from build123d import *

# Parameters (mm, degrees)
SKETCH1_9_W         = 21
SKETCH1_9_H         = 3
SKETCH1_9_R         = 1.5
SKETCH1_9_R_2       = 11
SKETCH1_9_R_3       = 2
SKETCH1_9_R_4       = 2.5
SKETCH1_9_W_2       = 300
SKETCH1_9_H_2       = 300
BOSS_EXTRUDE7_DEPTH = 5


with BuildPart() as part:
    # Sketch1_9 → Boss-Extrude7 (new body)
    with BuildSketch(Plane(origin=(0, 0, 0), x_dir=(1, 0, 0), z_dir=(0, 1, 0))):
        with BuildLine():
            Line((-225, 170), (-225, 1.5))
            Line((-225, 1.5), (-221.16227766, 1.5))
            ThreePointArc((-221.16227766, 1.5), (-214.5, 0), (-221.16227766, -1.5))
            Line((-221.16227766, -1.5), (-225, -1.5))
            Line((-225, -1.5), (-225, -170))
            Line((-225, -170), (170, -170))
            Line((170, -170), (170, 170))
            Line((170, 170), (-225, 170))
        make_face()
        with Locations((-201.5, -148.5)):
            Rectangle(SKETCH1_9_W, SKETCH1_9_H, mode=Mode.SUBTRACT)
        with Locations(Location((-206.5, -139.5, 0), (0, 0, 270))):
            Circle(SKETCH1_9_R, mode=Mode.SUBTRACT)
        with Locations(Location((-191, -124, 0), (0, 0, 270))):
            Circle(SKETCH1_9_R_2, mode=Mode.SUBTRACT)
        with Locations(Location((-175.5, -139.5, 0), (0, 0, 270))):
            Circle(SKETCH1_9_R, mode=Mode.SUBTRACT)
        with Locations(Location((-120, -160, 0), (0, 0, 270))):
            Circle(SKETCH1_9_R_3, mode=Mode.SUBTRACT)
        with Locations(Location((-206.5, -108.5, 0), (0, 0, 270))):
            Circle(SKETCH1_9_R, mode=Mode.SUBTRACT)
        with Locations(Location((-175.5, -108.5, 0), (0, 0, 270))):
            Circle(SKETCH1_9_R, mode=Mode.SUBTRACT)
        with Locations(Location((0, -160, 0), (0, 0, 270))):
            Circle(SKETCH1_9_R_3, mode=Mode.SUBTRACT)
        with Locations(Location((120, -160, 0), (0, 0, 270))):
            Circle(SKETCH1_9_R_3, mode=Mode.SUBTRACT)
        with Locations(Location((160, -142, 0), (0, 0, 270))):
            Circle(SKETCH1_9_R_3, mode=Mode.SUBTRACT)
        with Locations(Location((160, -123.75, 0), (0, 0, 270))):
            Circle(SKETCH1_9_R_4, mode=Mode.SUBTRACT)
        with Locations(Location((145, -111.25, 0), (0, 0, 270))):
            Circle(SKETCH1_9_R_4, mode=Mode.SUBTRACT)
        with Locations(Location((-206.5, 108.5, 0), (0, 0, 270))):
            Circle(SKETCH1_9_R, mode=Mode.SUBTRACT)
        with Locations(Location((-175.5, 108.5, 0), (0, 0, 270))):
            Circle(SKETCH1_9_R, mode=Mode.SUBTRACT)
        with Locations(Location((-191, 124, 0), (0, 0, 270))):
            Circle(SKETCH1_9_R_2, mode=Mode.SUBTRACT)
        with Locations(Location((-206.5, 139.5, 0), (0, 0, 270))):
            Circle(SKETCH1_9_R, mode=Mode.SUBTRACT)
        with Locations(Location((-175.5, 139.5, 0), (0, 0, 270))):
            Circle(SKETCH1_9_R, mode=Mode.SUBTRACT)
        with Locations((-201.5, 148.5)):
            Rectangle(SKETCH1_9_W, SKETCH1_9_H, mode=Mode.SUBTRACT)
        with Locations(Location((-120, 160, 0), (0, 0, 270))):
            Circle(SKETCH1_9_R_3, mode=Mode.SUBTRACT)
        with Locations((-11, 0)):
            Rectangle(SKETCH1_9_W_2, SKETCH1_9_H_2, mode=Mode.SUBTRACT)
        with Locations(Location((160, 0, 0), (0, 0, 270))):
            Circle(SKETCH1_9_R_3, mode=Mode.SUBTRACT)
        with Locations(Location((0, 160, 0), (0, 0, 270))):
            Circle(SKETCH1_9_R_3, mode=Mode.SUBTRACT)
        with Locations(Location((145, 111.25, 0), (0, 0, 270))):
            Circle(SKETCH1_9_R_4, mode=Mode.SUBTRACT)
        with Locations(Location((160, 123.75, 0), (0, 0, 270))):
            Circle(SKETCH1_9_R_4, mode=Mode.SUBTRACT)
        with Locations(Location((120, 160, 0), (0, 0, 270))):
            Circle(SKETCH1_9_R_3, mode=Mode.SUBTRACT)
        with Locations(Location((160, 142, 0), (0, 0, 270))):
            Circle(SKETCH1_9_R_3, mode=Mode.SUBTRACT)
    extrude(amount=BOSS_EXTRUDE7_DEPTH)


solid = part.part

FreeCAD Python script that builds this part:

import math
import FreeCAD as App
import Part
import Sketcher

V = App.Vector
Q = App.Units.Quantity

doc = App.newDocument("Part")
body = doc.addObject("PartDesign::Body", "Body")

# Sketch on XZ plane
sketch1 = body.newObject("Sketcher::SketchObject", "Sketch")
sketch1.AttachmentSupport = (doc.getObject("XZ_Plane"), [""])
sketch1.MapMode = "FlatFace"
sketch1.addGeometry([
    Part.LineSegment(V(-225, -170, 0), V(-225, -1.5, 0)),  # 0
    Part.LineSegment(V(-225, -1.5, 0), V(-221.162278, -1.5, 0)),  # 1
    Part.ArcOfCircle(Part.Circle(V(-218, 0, 0), V(0, 0, 1), 3.5), math.radians(-154.623066), math.radians(154.623066)),  # 2
    Part.LineSegment(V(-221.162278, 1.5, 0), V(-225, 1.5, 0)),  # 3
    Part.LineSegment(V(-225, 1.5, 0), V(-225, 170, 0)),  # 4
    Part.LineSegment(V(-225, 170, 0), V(170, 170, 0)),  # 5
    Part.LineSegment(V(170, 170, 0), V(170, -170, 0)),  # 6
    Part.LineSegment(V(170, -170, 0), V(-225, -170, 0)),  # 7
    Part.LineSegment(V(-191, 150, 0), V(-212, 150, 0)),  # 8
    Part.LineSegment(V(-212, 150, 0), V(-212, 147, 0)),  # 9
    Part.LineSegment(V(-212, 147, 0), V(-191, 147, 0)),  # 10
    Part.LineSegment(V(-191, 147, 0), V(-191, 150, 0)),  # 11
    Part.Circle(V(-206.5, 139.5, 0), V(0, 0, 1), 1.5),  # 12
    Part.Circle(V(-191, 124, 0), V(0, 0, 1), 11),  # 13
    Part.Circle(V(-175.5, 139.5, 0), V(0, 0, 1), 1.5),  # 14
    Part.Circle(V(-120, 160, 0), V(0, 0, 1), 2),  # 15
    Part.Circle(V(-206.5, 108.5, 0), V(0, 0, 1), 1.5),  # 16
    Part.Circle(V(-175.5, 108.5, 0), V(0, 0, 1), 1.5),  # 17
    Part.Circle(V(0, 160, 0), V(0, 0, 1), 2),  # 18
    Part.Circle(V(120, 160, 0), V(0, 0, 1), 2),  # 19
    Part.Circle(V(160, 142, 0), V(0, 0, 1), 2),  # 20
    Part.Circle(V(160, 123.75, 0), V(0, 0, 1), 2.5),  # 21
    Part.Circle(V(145, 111.25, 0), V(0, 0, 1), 2.5),  # 22
    Part.Circle(V(-206.5, -108.5, 0), V(0, 0, 1), 1.5),  # 23
    Part.Circle(V(-175.5, -108.5, 0), V(0, 0, 1), 1.5),  # 24
    Part.Circle(V(-191, -124, 0), V(0, 0, 1), 11),  # 25
    Part.Circle(V(-206.5, -139.5, 0), V(0, 0, 1), 1.5),  # 26
    Part.Circle(V(-175.5, -139.5, 0), V(0, 0, 1), 1.5),  # 27
    Part.LineSegment(V(-191, -147, 0), V(-212, -147, 0)),  # 28
    Part.LineSegment(V(-212, -147, 0), V(-212, -150, 0)),  # 29
    Part.LineSegment(V(-212, -150, 0), V(-191, -150, 0)),  # 30
    Part.LineSegment(V(-191, -150, 0), V(-191, -147, 0)),  # 31
    Part.Circle(V(-120, -160, 0), V(0, 0, 1), 2),  # 32
    Part.LineSegment(V(139, 150, 0), V(-161, 150, 0)),  # 33
    Part.LineSegment(V(-161, 150, 0), V(-161, -150, 0)),  # 34
    Part.LineSegment(V(-161, -150, 0), V(139, -150, 0)),  # 35
    Part.LineSegment(V(139, -150, 0), V(139, 150, 0)),  # 36
    Part.Circle(V(160, 0, 0), V(0, 0, 1), 2),  # 37
    Part.Circle(V(0, -160, 0), V(0, 0, 1), 2),  # 38
    Part.Circle(V(145, -111.25, 0), V(0, 0, 1), 2.5),  # 39
    Part.Circle(V(160, -123.75, 0), V(0, 0, 1), 2.5),  # 40
    Part.Circle(V(120, -160, 0), V(0, 0, 1), 2),  # 41
    Part.Circle(V(160, -142, 0), V(0, 0, 1), 2),  # 42
], False)
sketch1.addConstraint([
    Sketcher.Constraint("Coincident", 0, 2, 1, 1),
    Sketcher.Constraint("Coincident", 1, 2, 2, 1),
    Sketcher.Constraint("Coincident", 2, 2, 3, 1),
    Sketcher.Constraint("Coincident", 3, 2, 4, 1),
    Sketcher.Constraint("Coincident", 4, 2, 5, 1),
    Sketcher.Constraint("Coincident", 5, 2, 6, 1),
    Sketcher.Constraint("Coincident", 6, 2, 7, 1),
    Sketcher.Constraint("Coincident", 7, 2, 0, 1),
    Sketcher.Constraint("Coincident", 8, 2, 9, 1),
    Sketcher.Constraint("Coincident", 9, 2, 10, 1),
    Sketcher.Constraint("Coincident", 10, 2, 11, 1),
    Sketcher.Constraint("Coincident", 11, 2, 8, 1),
    Sketcher.Constraint("Coincident", 28, 2, 29, 1),
    Sketcher.Constraint("Coincident", 29, 2, 30, 1),
    Sketcher.Constraint("Coincident", 30, 2, 31, 1),
    Sketcher.Constraint("Coincident", 31, 2, 28, 1),
    Sketcher.Constraint("Coincident", 33, 2, 34, 1),
    Sketcher.Constraint("Coincident", 34, 2, 35, 1),
    Sketcher.Constraint("Coincident", 35, 2, 36, 1),
    Sketcher.Constraint("Coincident", 36, 2, 33, 1),
    Sketcher.Constraint("Vertical", 0),
    Sketcher.Constraint("Horizontal", 1),
    Sketcher.Constraint("Horizontal", 3),
    Sketcher.Constraint("Vertical", 4),
    Sketcher.Constraint("Horizontal", 5),
    Sketcher.Constraint("Vertical", 6),
    Sketcher.Constraint("Horizontal", 7),
    Sketcher.Constraint("Horizontal", 8),
    Sketcher.Constraint("Vertical", 9),
    Sketcher.Constraint("Horizontal", 10),
    Sketcher.Constraint("Vertical", 11),
    Sketcher.Constraint("Horizontal", 28),
    Sketcher.Constraint("Vertical", 29),
    Sketcher.Constraint("Horizontal", 30),
    Sketcher.Constraint("Vertical", 31),
    Sketcher.Constraint("Horizontal", 33),
    Sketcher.Constraint("Vertical", 34),
    Sketcher.Constraint("Horizontal", 35),
    Sketcher.Constraint("Vertical", 36),
    Sketcher.Constraint("Equal", 12, 14),
    Sketcher.Constraint("Equal", 14, 16),
    Sketcher.Constraint("Equal", 16, 17),
    Sketcher.Constraint("Equal", 15, 18),
    Sketcher.Constraint("Equal", 18, 19),
    Sketcher.Constraint("Equal", 19, 20),
    Sketcher.Constraint("Equal", 21, 22),
    Sketcher.Constraint("Equal", 17, 23),
    Sketcher.Constraint("Equal", 23, 24),
    Sketcher.Constraint("Equal", 13, 25),
    Sketcher.Constraint("Equal", 24, 26),
    Sketcher.Constraint("Equal", 26, 27),
    Sketcher.Constraint("Equal", 20, 32),
    Sketcher.Constraint("Equal", 32, 37),
    Sketcher.Constraint("Equal", 37, 38),
    Sketcher.Constraint("Equal", 22, 39),
    Sketcher.Constraint("Equal", 39, 40),
    Sketcher.Constraint("Equal", 38, 41),
    Sketcher.Constraint("Equal", 41, 42),
    Sketcher.Constraint("Symmetric", 19, 3, 32, 3, -1, 1),
    Sketcher.Constraint("Symmetric", 18, 3, 38, 3, -1, 1),
    Sketcher.Constraint("Symmetric", 15, 3, 41, 3, -1, 1),
    Sketcher.Constraint("Symmetric", 15, 3, 19, 3, -2),
    Sketcher.Constraint("Symmetric", 16, 3, 23, 3, -1),
    Sketcher.Constraint("Symmetric", 17, 3, 24, 3, -1),
    Sketcher.Constraint("Symmetric", 13, 3, 25, 3, -1),
    Sketcher.Constraint("Symmetric", 12, 3, 26, 3, -1),
    Sketcher.Constraint("Symmetric", 14, 3, 27, 3, -1),
    Sketcher.Constraint("Symmetric", 22, 3, 39, 3, -1),
    Sketcher.Constraint("Symmetric", 21, 3, 40, 3, -1),
    Sketcher.Constraint("Symmetric", 20, 3, 42, 3, -1),
    Sketcher.Constraint("Symmetric", 1, 2, 2, 2, -1),
    Sketcher.Constraint("Symmetric", 4, 2, 7, 2, -1),
    Sketcher.Constraint("Symmetric", 9, 2, 28, 2, -1),
    Sketcher.Constraint("Symmetric", 11, 2, 30, 2, -1),
    Sketcher.Constraint("PointOnObject", 18, 3, -2),
    Sketcher.Constraint("PointOnObject", 37, 3, -1),
    Sketcher.Constraint("Horizontal", 12, 3, 14, 3),
    Sketcher.Constraint("Horizontal", 16, 3, 17, 3),
    Sketcher.Constraint("Horizontal", 15, 3, 18, 3),
    Sketcher.Constraint("Horizontal", 11, 2, 33, 2),
    Sketcher.Constraint("Horizontal", 30, 2, 34, 2),
    Sketcher.Constraint("Vertical", 12, 3, 16, 3),
    Sketcher.Constraint("Vertical", 14, 3, 17, 3),
    Sketcher.Constraint("Vertical", 20, 3, 21, 3),
    Sketcher.Constraint("Vertical", 21, 3, 37, 3),
    Sketcher.Constraint("Vertical", 25, 3, 10, 2),
    Sketcher.Constraint("Equal", 35, 34),
    Sketcher.Constraint("Diameter", 12, Q("3 mm")),
    Sketcher.Constraint("Diameter", 13, Q("22 mm")),
    Sketcher.Constraint("Diameter", 15, Q("4 mm")),
    Sketcher.Constraint("Diameter", 21, Q("5 mm")),
    Sketcher.Constraint("Radius", 2, Q("3.5 mm")),
    Sketcher.Constraint("DistanceX", 5, 1, 5, 2, Q("395 mm")),
    Sketcher.Constraint("DistanceX", 8, 2, 8, 1, Q("21 mm")),
    Sketcher.Constraint("DistanceX", 33, 2, 33, 1, Q("300 mm")),
    Sketcher.Constraint("DistanceY", 6, 2, 6, 1, Q("340 mm")),
    Sketcher.Constraint("DistanceY", 9, 2, 9, 1, Q("3 mm")),
    Sketcher.Constraint("DistanceY", 0, 1, 0, 2, Q("168.5 mm")),
    Sketcher.Constraint("DistanceX", 2, 3, -1, 1, Q("218 mm")),
    Sketcher.Constraint("DistanceX", 13, 3, -1, 1, Q("191 mm")),
    Sketcher.Constraint("DistanceY", -1, 1, 13, 3, Q("124 mm")),
    Sketcher.Constraint("DistanceX", 15, 3, -1, 1, Q("120 mm")),
    Sketcher.Constraint("DistanceY", -1, 1, 15, 3, Q("160 mm")),
    Sketcher.Constraint("DistanceX", -1, 1, 20, 3, Q("160 mm")),
    Sketcher.Constraint("DistanceY", -1, 1, 20, 3, Q("142 mm")),
    Sketcher.Constraint("DistanceX", -1, 1, 22, 3, Q("145 mm")),
    Sketcher.Constraint("DistanceX", 0, 2, -1, 1, Q("225 mm")),
    Sketcher.Constraint("DistanceX", 33, 2, -1, 1, Q("161 mm")),
    Sketcher.Constraint("DistanceX", 12, 3, 14, 3, Q("31 mm")),
    Sketcher.Constraint("DistanceY", 16, 3, 12, 3, Q("31 mm")),
    Sketcher.Constraint("DistanceY", 23, 3, 16, 3, Q("217 mm")),
    Sketcher.Constraint("DistanceY", 39, 3, 21, 3, Q("235 mm")),
    Sketcher.Constraint("DistanceX", 12, 3, -1, 1, Q("206.5 mm")),
    Sketcher.Constraint("DistanceY", 22, 3, 21, 3, Q("12.5 mm")),
])
pad1 = body.newObject("PartDesign::Pad", "Pad")
pad1.Profile = sketch1
pad1.Length = 5
pad1.Reversed = True

doc.recompute()
